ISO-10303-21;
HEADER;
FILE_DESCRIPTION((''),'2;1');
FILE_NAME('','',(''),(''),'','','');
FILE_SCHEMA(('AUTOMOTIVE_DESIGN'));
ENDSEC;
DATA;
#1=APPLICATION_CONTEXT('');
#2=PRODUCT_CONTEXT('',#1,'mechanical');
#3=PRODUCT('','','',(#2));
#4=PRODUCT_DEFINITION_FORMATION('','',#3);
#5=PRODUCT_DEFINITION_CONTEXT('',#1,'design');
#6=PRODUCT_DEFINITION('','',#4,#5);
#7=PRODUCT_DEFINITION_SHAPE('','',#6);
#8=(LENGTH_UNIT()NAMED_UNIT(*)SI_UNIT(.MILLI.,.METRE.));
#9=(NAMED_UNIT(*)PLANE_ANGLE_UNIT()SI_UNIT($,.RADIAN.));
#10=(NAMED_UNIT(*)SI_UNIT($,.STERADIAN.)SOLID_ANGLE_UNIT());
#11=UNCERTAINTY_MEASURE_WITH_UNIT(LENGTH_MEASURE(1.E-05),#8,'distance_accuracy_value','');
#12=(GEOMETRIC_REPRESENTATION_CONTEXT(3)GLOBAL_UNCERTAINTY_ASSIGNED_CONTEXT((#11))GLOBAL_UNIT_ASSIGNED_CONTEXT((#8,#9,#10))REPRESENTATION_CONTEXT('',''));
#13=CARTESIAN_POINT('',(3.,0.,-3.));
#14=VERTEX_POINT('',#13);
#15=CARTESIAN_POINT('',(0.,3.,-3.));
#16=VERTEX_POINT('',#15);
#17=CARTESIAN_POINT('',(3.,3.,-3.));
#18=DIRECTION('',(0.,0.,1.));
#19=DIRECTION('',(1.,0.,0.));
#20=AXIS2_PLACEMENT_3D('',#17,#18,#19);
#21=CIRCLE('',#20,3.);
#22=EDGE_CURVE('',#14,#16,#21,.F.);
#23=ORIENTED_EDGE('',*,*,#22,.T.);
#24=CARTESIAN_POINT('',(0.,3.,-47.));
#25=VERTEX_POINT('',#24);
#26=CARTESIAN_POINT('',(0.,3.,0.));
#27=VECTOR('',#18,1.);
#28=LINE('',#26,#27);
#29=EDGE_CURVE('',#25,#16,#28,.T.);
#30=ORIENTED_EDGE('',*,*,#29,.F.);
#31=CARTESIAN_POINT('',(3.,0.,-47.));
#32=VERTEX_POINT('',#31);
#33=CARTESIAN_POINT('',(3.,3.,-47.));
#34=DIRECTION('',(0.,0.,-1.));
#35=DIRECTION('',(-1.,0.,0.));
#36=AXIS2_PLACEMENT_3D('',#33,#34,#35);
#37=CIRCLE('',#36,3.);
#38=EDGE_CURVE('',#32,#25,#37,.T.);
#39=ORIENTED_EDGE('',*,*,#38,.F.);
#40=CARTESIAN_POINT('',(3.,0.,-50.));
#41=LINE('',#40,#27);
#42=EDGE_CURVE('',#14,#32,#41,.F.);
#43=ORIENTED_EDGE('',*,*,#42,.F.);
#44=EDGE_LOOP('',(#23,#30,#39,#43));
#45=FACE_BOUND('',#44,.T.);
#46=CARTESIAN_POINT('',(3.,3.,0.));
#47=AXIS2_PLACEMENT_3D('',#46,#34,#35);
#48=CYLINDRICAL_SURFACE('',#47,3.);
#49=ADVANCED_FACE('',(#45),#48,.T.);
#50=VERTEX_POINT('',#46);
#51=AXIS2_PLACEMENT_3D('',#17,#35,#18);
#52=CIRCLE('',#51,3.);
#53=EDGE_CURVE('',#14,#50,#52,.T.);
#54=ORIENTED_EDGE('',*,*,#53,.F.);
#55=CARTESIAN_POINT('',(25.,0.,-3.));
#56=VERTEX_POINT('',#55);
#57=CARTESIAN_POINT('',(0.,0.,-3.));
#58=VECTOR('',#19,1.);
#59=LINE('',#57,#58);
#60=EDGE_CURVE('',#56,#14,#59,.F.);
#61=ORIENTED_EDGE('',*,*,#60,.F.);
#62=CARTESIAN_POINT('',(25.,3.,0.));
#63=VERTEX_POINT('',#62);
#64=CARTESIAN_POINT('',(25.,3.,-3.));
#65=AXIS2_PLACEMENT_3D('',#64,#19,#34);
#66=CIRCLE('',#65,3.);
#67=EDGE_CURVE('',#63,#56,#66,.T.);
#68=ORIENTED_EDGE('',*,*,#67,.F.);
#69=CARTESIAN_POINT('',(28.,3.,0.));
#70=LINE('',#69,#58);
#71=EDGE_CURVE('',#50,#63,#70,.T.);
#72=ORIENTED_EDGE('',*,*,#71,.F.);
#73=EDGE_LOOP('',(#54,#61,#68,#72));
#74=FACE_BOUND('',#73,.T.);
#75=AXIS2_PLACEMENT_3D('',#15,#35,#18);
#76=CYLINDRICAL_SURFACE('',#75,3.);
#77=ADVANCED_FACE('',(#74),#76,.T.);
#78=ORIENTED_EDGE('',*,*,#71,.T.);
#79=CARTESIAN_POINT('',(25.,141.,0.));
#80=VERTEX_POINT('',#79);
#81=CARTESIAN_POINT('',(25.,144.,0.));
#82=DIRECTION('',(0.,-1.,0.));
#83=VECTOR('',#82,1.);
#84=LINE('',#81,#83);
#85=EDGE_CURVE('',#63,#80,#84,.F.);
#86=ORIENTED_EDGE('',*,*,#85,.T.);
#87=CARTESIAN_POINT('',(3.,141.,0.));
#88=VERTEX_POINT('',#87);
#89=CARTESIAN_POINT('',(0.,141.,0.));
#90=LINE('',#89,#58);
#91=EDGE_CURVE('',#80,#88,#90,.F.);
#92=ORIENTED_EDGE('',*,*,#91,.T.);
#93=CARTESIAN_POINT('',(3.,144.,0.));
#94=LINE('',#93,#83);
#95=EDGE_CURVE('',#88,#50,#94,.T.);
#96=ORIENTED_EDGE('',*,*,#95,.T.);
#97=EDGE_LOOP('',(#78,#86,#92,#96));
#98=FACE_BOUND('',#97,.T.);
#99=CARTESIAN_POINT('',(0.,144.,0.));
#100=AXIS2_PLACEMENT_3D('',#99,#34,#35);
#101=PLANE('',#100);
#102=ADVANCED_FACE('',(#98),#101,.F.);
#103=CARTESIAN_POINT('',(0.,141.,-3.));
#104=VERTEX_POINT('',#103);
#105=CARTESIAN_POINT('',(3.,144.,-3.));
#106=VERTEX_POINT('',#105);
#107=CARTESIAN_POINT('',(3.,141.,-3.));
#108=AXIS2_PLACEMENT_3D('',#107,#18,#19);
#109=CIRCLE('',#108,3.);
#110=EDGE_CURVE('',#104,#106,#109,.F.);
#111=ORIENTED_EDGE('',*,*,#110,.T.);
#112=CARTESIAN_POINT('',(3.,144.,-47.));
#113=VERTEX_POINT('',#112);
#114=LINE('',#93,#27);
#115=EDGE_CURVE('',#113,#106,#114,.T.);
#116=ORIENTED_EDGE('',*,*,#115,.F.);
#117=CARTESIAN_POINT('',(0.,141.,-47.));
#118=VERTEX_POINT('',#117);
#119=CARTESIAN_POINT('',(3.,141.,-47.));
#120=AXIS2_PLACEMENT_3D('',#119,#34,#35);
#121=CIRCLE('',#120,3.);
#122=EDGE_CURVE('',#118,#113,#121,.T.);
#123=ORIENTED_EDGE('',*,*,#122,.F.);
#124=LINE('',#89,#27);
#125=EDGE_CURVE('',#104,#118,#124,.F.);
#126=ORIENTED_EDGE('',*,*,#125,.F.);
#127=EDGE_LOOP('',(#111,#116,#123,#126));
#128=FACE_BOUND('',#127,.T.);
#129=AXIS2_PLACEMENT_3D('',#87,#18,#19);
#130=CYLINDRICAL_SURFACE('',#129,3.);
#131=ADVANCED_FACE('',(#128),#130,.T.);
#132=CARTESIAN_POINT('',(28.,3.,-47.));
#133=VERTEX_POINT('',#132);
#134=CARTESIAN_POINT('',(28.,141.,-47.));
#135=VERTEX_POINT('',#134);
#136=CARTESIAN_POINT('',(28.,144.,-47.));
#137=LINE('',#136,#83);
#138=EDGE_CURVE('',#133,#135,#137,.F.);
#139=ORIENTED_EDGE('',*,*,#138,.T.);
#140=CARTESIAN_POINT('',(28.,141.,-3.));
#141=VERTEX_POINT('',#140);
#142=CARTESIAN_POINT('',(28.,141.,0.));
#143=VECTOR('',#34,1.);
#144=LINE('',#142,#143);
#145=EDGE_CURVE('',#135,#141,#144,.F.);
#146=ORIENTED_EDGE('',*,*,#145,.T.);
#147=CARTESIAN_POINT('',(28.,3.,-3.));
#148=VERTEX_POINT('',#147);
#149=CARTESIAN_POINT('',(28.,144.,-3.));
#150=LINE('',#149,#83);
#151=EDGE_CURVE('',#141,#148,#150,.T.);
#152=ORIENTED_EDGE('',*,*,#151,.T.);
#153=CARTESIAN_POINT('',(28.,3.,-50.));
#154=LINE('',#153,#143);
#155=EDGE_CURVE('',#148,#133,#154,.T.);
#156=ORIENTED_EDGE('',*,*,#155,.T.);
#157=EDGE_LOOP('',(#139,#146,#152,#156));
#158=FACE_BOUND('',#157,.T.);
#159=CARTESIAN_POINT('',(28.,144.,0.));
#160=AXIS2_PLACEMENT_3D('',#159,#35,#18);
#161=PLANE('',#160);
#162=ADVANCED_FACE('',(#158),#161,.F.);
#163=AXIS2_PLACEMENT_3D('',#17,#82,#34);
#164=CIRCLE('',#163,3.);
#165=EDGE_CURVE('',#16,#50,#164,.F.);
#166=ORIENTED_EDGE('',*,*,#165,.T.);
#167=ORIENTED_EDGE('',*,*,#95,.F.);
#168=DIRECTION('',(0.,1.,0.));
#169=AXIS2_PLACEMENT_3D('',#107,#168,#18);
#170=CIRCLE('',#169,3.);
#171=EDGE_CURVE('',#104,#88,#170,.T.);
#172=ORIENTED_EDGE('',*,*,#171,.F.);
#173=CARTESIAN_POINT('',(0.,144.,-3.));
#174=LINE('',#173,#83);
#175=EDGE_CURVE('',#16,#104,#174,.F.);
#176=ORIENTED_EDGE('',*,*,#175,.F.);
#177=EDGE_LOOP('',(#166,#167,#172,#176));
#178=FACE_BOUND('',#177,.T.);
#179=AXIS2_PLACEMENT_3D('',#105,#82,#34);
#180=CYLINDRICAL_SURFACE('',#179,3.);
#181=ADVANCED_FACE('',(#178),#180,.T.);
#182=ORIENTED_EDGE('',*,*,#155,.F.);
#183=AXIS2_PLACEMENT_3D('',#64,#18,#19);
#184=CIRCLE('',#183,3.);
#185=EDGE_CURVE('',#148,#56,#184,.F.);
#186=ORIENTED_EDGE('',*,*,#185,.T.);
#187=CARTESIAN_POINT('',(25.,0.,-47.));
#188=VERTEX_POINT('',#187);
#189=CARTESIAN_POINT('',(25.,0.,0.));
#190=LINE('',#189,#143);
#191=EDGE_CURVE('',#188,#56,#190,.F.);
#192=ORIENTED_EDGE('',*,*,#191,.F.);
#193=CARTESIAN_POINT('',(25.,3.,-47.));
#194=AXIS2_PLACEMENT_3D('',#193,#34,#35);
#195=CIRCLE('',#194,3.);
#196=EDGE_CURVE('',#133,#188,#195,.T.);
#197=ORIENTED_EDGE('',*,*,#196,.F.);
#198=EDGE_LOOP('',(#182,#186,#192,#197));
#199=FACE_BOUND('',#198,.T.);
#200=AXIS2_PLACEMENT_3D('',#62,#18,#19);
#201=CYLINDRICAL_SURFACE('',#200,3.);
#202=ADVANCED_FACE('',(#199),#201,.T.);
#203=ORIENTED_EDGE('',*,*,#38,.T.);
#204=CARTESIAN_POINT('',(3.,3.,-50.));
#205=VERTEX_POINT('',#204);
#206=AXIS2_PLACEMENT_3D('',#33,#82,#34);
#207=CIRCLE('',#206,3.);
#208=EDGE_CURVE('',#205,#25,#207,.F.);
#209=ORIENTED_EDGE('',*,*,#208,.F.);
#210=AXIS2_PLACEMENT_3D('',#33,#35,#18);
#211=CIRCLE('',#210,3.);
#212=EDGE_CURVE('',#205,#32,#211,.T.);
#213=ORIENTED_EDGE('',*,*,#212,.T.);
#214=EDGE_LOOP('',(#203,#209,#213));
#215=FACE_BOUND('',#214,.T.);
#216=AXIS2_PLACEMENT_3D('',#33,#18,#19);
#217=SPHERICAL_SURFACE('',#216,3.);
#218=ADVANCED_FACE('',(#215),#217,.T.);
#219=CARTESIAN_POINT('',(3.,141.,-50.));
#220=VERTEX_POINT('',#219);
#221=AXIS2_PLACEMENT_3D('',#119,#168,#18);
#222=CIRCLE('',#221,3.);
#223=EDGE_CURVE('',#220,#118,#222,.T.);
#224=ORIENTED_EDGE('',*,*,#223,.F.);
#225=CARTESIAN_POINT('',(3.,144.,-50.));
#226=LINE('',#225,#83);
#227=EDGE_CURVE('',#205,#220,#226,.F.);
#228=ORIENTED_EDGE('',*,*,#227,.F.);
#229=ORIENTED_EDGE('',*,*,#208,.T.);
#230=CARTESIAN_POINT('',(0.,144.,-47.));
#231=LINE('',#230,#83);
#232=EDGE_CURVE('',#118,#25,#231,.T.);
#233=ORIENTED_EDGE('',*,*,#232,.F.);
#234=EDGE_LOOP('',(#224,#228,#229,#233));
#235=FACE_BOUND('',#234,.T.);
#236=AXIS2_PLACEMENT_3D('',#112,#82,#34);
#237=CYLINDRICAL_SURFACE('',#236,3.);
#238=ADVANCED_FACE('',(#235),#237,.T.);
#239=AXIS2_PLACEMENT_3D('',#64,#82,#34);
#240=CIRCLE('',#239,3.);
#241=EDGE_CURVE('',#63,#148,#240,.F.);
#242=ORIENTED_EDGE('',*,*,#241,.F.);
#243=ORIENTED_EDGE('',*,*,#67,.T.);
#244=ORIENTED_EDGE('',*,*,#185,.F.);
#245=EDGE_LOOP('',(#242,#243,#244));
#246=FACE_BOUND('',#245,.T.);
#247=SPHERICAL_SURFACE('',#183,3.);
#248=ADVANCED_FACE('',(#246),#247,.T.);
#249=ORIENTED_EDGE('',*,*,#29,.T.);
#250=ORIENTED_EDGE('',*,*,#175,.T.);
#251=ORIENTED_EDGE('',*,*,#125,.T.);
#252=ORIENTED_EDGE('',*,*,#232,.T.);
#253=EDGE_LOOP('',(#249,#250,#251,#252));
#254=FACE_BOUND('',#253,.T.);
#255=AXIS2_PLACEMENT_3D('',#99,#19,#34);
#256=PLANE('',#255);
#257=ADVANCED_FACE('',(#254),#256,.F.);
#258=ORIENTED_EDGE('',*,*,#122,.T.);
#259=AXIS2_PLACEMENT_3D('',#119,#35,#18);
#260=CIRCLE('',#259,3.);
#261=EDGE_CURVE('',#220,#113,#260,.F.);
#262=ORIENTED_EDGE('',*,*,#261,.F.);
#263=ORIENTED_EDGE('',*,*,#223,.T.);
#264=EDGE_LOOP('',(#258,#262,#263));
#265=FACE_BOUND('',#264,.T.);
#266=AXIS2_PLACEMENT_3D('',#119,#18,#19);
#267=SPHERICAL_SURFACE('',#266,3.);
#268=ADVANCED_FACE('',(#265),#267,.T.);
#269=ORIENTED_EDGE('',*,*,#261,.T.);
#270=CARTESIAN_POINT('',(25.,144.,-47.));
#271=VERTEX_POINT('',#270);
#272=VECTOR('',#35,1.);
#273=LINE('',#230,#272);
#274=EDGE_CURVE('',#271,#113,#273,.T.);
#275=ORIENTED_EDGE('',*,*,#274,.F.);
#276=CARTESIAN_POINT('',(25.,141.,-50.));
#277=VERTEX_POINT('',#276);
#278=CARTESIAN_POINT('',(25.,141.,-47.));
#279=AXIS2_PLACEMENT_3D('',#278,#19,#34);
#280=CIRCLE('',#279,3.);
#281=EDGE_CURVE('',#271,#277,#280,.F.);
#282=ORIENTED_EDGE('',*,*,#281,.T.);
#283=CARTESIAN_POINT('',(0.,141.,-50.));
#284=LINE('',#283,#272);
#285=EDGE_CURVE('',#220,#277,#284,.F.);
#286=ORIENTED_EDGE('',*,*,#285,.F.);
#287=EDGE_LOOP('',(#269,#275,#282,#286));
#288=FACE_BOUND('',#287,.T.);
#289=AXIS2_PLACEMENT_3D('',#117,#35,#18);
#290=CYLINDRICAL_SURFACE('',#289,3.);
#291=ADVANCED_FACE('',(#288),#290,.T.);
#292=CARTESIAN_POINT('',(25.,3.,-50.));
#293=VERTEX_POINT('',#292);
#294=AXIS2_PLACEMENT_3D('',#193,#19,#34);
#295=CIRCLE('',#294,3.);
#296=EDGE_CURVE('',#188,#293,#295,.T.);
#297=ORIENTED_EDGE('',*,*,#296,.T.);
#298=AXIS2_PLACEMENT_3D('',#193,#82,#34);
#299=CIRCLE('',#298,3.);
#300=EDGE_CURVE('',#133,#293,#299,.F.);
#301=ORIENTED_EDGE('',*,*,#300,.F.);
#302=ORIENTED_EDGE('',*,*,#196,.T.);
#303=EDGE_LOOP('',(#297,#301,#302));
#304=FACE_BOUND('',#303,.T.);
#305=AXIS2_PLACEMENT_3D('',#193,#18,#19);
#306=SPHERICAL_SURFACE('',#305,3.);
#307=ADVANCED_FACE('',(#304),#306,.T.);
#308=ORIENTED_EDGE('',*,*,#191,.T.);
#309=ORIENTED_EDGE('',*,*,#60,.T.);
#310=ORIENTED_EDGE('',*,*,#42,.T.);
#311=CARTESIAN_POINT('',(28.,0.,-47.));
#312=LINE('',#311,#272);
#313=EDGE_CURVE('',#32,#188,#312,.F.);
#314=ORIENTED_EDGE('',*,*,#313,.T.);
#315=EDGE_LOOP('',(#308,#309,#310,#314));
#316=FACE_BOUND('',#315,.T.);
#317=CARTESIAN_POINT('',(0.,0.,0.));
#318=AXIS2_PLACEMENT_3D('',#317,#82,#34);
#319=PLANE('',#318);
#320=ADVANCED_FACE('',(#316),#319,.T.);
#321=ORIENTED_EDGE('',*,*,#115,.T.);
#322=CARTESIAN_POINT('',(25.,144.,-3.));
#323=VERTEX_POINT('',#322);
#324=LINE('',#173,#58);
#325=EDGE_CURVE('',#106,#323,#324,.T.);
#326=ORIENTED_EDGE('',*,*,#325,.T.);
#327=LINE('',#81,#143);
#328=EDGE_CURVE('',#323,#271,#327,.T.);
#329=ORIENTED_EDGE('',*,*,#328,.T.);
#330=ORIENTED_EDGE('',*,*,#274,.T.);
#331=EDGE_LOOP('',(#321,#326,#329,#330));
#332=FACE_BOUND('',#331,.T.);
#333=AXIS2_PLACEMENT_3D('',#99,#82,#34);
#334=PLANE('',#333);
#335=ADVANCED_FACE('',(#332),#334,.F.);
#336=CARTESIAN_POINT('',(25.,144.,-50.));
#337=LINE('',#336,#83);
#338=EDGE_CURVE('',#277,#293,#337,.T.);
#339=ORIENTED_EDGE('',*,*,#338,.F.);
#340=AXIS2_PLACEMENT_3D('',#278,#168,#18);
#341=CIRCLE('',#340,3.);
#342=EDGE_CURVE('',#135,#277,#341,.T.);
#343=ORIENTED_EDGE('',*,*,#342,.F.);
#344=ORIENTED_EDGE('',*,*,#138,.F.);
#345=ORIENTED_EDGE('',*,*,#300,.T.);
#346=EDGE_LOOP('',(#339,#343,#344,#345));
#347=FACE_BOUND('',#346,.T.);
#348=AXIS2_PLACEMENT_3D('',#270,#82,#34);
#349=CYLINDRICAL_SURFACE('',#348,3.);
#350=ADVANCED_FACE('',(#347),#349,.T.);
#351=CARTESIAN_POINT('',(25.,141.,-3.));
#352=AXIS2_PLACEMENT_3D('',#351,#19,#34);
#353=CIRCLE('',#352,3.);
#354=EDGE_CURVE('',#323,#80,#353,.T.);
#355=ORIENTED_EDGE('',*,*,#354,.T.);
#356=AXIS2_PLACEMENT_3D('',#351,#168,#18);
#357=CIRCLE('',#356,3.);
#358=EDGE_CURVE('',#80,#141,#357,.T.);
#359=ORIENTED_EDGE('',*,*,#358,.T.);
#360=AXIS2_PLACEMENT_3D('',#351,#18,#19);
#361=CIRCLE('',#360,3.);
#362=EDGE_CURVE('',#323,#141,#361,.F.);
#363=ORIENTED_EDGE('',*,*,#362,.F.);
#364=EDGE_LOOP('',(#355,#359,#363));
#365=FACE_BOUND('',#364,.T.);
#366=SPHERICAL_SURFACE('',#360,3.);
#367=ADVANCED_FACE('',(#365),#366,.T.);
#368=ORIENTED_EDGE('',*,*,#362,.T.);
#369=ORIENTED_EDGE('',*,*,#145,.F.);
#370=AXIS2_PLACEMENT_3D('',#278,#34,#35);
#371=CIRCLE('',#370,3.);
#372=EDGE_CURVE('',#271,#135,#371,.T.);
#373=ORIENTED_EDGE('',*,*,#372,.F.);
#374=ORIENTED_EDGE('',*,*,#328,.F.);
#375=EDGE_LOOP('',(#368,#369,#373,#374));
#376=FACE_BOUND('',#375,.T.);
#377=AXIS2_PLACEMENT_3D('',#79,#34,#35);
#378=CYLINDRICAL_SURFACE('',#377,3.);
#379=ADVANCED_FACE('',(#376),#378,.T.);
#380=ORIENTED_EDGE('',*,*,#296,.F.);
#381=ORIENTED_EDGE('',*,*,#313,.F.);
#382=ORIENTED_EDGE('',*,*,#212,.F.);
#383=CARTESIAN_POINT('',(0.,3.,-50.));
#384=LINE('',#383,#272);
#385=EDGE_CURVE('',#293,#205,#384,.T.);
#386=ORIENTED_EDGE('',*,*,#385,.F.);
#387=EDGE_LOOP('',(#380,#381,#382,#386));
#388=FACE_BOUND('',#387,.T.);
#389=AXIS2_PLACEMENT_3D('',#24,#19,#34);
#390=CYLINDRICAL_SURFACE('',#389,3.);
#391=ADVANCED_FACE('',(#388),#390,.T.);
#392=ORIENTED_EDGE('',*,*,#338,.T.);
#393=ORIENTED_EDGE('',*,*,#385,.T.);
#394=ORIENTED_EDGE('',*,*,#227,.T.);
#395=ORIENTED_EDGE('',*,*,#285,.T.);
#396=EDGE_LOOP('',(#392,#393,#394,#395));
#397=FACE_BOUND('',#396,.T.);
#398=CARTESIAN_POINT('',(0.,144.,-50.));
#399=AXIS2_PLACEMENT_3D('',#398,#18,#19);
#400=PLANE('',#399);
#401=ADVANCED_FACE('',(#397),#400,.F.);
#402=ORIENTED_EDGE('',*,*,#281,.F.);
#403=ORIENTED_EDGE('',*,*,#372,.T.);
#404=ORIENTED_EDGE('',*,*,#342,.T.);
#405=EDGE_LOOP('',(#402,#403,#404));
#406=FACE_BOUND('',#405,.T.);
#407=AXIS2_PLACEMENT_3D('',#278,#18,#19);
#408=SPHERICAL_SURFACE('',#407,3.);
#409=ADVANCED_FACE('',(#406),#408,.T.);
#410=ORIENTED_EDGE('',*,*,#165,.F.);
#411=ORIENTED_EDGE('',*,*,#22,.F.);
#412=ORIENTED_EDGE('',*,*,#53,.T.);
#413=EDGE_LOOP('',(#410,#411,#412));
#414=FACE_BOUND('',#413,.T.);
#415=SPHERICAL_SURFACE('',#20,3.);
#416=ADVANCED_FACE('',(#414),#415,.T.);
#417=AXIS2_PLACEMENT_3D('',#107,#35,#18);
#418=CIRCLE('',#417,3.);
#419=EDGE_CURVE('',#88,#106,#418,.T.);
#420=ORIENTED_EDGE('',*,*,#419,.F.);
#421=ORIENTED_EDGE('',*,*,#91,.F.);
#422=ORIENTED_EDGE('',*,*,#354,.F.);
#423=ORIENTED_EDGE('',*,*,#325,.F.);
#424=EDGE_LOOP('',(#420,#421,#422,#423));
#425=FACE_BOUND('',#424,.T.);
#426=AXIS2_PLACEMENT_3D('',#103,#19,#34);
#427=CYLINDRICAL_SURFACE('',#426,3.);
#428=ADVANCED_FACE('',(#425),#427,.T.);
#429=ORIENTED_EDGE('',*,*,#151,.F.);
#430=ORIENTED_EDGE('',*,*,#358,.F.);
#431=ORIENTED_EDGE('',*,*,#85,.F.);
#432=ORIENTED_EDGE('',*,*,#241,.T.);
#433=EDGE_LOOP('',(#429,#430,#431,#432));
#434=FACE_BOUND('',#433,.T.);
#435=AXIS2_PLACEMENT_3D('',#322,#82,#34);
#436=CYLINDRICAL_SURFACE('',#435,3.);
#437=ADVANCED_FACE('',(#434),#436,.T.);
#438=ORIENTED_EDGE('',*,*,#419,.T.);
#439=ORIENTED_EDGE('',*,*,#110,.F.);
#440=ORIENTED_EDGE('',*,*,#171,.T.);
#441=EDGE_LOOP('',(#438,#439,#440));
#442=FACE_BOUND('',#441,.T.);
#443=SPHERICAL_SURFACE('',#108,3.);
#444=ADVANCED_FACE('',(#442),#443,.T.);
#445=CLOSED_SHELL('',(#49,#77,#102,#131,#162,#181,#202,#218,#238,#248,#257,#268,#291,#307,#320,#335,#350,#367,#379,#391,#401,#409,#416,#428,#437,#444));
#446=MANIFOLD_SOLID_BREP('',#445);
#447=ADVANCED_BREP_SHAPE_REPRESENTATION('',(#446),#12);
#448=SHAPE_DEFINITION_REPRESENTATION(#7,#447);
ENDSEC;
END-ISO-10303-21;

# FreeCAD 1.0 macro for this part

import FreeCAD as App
import Part
import Sketcher


def add_polygon(sketch, points):
    """Adds a closed chain of lines whose ends are joined by coincident constraints."""
    first, n = sketch.GeometryCount, len(points)
    for a, b in zip(points, points[1:] + points[:1]):
        sketch.addGeometry(Part.LineSegment(App.Vector(*a, 0), App.Vector(*b, 0)), False)
    for i in range(n):
        sketch.addConstraint(Sketcher.Constraint("Coincident", first + i, 2, first + (i + 1) % n, 1))

doc = App.newDocument("Part")
body = doc.addObject("PartDesign::Body", "Body")

# Sketch on XZ plane
sketch1 = body.newObject("Sketcher::SketchObject", "Sketch")
sketch1.AttachmentSupport = (doc.getObject("XZ_Plane"), [""])
sketch1.MapMode = "FlatFace"
add_polygon(sketch1, [(0, -50), (0, 0), (28, 0), (28, -50)])  # lines 0-3
sketch1.addConstraint([
    Sketcher.Constraint("Vertical", 0),
    Sketcher.Constraint("Horizontal", 1),
    Sketcher.Constraint("Vertical", 2),
    Sketcher.Constraint("Horizontal", 3),
    Sketcher.Constraint("Coincident", 0, 2, -1, 1),
    Sketcher.Constraint("DistanceX", 1, 1, 1, 2, 28.0),
    Sketcher.Constraint("DistanceY", 0, 1, 0, 2, 50.0),
])
pad1 = body.newObject("PartDesign::Pad", "Pad")
pad1.Profile = sketch1
pad1.Length = 144
pad1.Reversed = True
doc.recompute()

fillet = body.newObject("PartDesign::Fillet", "Fillet")
fillet.Base = (pad1, ["Edge1"])
fillet.UseAllEdges = True
fillet.Radius = 3

doc.recompute()
